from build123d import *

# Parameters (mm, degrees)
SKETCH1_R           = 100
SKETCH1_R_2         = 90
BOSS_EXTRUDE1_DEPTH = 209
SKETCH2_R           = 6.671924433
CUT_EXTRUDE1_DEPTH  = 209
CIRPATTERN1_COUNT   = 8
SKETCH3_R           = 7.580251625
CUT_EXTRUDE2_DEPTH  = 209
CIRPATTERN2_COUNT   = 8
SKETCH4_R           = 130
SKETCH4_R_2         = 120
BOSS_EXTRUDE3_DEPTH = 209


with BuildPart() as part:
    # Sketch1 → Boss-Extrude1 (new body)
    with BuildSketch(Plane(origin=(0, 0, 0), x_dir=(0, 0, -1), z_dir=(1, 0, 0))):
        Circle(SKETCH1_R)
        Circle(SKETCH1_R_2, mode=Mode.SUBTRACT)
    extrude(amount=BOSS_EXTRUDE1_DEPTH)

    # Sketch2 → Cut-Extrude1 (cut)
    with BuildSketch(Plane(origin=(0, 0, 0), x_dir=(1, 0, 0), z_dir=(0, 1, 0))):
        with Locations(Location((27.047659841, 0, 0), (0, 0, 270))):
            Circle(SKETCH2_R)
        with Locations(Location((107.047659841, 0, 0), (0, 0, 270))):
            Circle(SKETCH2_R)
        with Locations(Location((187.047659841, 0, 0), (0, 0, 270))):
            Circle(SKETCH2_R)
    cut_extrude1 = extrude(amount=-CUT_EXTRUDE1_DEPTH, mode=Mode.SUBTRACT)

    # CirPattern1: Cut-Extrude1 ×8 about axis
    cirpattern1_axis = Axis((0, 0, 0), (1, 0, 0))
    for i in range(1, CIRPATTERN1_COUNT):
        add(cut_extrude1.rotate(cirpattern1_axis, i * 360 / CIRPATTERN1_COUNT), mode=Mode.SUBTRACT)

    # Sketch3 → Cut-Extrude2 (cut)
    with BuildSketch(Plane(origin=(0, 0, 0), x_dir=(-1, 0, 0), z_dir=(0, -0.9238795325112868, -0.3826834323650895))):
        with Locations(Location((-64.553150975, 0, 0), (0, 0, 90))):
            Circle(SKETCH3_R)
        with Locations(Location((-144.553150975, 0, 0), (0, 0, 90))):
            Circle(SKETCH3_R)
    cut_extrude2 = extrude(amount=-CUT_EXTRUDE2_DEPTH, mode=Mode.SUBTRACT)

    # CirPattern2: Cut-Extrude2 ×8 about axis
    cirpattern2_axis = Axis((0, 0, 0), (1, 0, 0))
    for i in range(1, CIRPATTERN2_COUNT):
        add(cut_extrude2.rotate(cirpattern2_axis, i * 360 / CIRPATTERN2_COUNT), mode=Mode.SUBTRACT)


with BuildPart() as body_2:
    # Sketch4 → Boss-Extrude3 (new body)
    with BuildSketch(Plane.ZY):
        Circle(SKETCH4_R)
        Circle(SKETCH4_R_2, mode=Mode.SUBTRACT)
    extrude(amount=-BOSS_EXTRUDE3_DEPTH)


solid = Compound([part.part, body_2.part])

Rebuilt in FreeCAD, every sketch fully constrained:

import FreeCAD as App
import Part
import Sketcher

doc = App.newDocument("Part")
body = doc.addObject("PartDesign::Body", "Body")

sketch1 = body.newObject("Sketcher::SketchObject", "Sketch")
sketch1.AttachmentSupport = (doc.getObject("YZ_Plane"), [""])
sketch1.MapMode = "FlatFace"
sketch1.addGeometry(Part.Circle(App.Vector(0, 0, 0), App.Vector(0, 0, 1), 100), False)
sketch1.addGeometry(Part.Circle(App.Vector(0, 0, 0), App.Vector(0, 0, 1), 90), False)
sketch1.addConstraint(Sketcher.Constraint("Coincident", 0, 3, -1, 1))
sketch1.addConstraint(Sketcher.Constraint("Coincident", 1, 3, -1, 1))
sketch1.addConstraint(Sketcher.Constraint("Diameter", 0, 200.0))
sketch1.addConstraint(Sketcher.Constraint("Diameter", 1, 180.0))
pad1 = body.newObject("PartDesign::Pad", "Pad")
pad1.Profile = sketch1
pad1.Length = 209

sketch2 = body.newObject("Sketcher::SketchObject", "Sketch001")
sketch2.AttachmentSupport = (doc.getObject("XZ_Plane"), [""])
sketch2.MapMode = "FlatFace"
sketch2.addGeometry(Part.Circle(App.Vector(27.04766, 0, 0), App.Vector(0, 0, 1), 6.671924), False)
sketch2.addGeometry(Part.Circle(App.Vector(107.04766, 0, 0), App.Vector(0, 0, 1), 6.671924), False)
sketch2.addGeometry(Part.Circle(App.Vector(187.04766, 0, 0), App.Vector(0, 0, 1), 6.671924), False)
sketch2.addConstraint(Sketcher.Constraint("Equal", 0, 1))
sketch2.addConstraint(Sketcher.Constraint("Equal", 1, 2))
sketch2.addConstraint(Sketcher.Constraint("PointOnObject", 0, 3, -1))
sketch2.addConstraint(Sketcher.Constraint("PointOnObject", 1, 3, -1))
sketch2.addConstraint(Sketcher.Constraint("PointOnObject", 2, 3, -1))
sketch2.addConstraint(Sketcher.Constraint("DistanceX", 0, 3, 1, 3, 80.0))
sketch2.addConstraint(Sketcher.Constraint("DistanceX", 1, 3, 2, 3, 80.0))
sketch2.addConstraint(Sketcher.Constraint("Diameter", 0, 13.343849))
sketch2.addConstraint(Sketcher.Constraint("DistanceX", -1, 1, 0, 3, 27.04766))
pocket1 = body.newObject("PartDesign::Pocket", "Pocket")
pocket1.Profile = sketch2
pocket1.Length = 209
pocket1.Reversed = True
doc.recompute()

polarpattern = body.newObject("PartDesign::PolarPattern", "PolarPattern")
polarpattern.Originals = [pocket1]
polarpattern.Axis = (doc.getObject("X_Axis"), [""])
polarpattern.Angle = 360
polarpattern.Occurrences = 8
body.Tip = polarpattern

sketch3 = body.newObject("Sketcher::SketchObject", "Sketch002")
sketch3.Placement = App.Placement(App.Vector(0, 0, 0), App.Rotation(App.Vector(-1, 0, 0), App.Vector(0, 0.382683432, -0.923879533), App.Vector(0, -0.923879533, -0.382683432), "ZXY"))
sketch3.addGeometry(Part.Circle(App.Vector(-64.553151, 0, 0), App.Vector(0, 0, 1), 7.580252), False)
sketch3.addGeometry(Part.Circle(App.Vector(-144.553151, 0, 0), App.Vector(0, 0, 1), 7.580252), False)
sketch3.addConstraint(Sketcher.Constraint("Equal", 0, 1))
sketch3.addConstraint(Sketcher.Constraint("PointOnObject", 0, 3, -1))
sketch3.addConstraint(Sketcher.Constraint("PointOnObject", 1, 3, -1))
sketch3.addConstraint(Sketcher.Constraint("DistanceX", 1, 3, 0, 3, 80.0))
sketch3.addConstraint(Sketcher.Constraint("Diameter", 0, 15.160503))
sketch3.addConstraint(Sketcher.Constraint("DistanceX", 0, 3, -1, 1, 64.553151))
pocket2 = body.newObject("PartDesign::Pocket", "Pocket001")
pocket2.Profile = sketch3
pocket2.Length = 209
doc.recompute()

polarpattern2 = body.newObject("PartDesign::PolarPattern", "PolarPattern001")
polarpattern2.Originals = [pocket2]
polarpattern2.Axis = (doc.getObject("X_Axis"), [""])
polarpattern2.Angle = 360
polarpattern2.Occurrences = 8
body.Tip = polarpattern2
body2 = doc.addObject("PartDesign::Body", "Body001")

sketch4 = body2.newObject("Sketcher::SketchObject", "Sketch003")
sketch4.AttachmentSupport = (doc.getObject("YZ_Plane001"), [""])
sketch4.MapMode = "FlatFace"
sketch4.addGeometry(Part.Circle(App.Vector(0, 0, 0), App.Vector(0, 0, 1), 130), False)
sketch4.addGeometry(Part.Circle(App.Vector(0, 0, 0), App.Vector(0, 0, 1), 120), False)
sketch4.addConstraint(Sketcher.Constraint("Coincident", 0, 3, -1, 1))
sketch4.addConstraint(Sketcher.Constraint("Coincident", 1, 3, -1, 1))
sketch4.addConstraint(Sketcher.Constraint("Diameter", 0, 260.0))
sketch4.addConstraint(Sketcher.Constraint("Diameter", 1, 240.0))
pad2 = body2.newObject("PartDesign::Pad", "Pad001")
pad2.Profile = sketch4
pad2.Length = 209

doc.recompute()
